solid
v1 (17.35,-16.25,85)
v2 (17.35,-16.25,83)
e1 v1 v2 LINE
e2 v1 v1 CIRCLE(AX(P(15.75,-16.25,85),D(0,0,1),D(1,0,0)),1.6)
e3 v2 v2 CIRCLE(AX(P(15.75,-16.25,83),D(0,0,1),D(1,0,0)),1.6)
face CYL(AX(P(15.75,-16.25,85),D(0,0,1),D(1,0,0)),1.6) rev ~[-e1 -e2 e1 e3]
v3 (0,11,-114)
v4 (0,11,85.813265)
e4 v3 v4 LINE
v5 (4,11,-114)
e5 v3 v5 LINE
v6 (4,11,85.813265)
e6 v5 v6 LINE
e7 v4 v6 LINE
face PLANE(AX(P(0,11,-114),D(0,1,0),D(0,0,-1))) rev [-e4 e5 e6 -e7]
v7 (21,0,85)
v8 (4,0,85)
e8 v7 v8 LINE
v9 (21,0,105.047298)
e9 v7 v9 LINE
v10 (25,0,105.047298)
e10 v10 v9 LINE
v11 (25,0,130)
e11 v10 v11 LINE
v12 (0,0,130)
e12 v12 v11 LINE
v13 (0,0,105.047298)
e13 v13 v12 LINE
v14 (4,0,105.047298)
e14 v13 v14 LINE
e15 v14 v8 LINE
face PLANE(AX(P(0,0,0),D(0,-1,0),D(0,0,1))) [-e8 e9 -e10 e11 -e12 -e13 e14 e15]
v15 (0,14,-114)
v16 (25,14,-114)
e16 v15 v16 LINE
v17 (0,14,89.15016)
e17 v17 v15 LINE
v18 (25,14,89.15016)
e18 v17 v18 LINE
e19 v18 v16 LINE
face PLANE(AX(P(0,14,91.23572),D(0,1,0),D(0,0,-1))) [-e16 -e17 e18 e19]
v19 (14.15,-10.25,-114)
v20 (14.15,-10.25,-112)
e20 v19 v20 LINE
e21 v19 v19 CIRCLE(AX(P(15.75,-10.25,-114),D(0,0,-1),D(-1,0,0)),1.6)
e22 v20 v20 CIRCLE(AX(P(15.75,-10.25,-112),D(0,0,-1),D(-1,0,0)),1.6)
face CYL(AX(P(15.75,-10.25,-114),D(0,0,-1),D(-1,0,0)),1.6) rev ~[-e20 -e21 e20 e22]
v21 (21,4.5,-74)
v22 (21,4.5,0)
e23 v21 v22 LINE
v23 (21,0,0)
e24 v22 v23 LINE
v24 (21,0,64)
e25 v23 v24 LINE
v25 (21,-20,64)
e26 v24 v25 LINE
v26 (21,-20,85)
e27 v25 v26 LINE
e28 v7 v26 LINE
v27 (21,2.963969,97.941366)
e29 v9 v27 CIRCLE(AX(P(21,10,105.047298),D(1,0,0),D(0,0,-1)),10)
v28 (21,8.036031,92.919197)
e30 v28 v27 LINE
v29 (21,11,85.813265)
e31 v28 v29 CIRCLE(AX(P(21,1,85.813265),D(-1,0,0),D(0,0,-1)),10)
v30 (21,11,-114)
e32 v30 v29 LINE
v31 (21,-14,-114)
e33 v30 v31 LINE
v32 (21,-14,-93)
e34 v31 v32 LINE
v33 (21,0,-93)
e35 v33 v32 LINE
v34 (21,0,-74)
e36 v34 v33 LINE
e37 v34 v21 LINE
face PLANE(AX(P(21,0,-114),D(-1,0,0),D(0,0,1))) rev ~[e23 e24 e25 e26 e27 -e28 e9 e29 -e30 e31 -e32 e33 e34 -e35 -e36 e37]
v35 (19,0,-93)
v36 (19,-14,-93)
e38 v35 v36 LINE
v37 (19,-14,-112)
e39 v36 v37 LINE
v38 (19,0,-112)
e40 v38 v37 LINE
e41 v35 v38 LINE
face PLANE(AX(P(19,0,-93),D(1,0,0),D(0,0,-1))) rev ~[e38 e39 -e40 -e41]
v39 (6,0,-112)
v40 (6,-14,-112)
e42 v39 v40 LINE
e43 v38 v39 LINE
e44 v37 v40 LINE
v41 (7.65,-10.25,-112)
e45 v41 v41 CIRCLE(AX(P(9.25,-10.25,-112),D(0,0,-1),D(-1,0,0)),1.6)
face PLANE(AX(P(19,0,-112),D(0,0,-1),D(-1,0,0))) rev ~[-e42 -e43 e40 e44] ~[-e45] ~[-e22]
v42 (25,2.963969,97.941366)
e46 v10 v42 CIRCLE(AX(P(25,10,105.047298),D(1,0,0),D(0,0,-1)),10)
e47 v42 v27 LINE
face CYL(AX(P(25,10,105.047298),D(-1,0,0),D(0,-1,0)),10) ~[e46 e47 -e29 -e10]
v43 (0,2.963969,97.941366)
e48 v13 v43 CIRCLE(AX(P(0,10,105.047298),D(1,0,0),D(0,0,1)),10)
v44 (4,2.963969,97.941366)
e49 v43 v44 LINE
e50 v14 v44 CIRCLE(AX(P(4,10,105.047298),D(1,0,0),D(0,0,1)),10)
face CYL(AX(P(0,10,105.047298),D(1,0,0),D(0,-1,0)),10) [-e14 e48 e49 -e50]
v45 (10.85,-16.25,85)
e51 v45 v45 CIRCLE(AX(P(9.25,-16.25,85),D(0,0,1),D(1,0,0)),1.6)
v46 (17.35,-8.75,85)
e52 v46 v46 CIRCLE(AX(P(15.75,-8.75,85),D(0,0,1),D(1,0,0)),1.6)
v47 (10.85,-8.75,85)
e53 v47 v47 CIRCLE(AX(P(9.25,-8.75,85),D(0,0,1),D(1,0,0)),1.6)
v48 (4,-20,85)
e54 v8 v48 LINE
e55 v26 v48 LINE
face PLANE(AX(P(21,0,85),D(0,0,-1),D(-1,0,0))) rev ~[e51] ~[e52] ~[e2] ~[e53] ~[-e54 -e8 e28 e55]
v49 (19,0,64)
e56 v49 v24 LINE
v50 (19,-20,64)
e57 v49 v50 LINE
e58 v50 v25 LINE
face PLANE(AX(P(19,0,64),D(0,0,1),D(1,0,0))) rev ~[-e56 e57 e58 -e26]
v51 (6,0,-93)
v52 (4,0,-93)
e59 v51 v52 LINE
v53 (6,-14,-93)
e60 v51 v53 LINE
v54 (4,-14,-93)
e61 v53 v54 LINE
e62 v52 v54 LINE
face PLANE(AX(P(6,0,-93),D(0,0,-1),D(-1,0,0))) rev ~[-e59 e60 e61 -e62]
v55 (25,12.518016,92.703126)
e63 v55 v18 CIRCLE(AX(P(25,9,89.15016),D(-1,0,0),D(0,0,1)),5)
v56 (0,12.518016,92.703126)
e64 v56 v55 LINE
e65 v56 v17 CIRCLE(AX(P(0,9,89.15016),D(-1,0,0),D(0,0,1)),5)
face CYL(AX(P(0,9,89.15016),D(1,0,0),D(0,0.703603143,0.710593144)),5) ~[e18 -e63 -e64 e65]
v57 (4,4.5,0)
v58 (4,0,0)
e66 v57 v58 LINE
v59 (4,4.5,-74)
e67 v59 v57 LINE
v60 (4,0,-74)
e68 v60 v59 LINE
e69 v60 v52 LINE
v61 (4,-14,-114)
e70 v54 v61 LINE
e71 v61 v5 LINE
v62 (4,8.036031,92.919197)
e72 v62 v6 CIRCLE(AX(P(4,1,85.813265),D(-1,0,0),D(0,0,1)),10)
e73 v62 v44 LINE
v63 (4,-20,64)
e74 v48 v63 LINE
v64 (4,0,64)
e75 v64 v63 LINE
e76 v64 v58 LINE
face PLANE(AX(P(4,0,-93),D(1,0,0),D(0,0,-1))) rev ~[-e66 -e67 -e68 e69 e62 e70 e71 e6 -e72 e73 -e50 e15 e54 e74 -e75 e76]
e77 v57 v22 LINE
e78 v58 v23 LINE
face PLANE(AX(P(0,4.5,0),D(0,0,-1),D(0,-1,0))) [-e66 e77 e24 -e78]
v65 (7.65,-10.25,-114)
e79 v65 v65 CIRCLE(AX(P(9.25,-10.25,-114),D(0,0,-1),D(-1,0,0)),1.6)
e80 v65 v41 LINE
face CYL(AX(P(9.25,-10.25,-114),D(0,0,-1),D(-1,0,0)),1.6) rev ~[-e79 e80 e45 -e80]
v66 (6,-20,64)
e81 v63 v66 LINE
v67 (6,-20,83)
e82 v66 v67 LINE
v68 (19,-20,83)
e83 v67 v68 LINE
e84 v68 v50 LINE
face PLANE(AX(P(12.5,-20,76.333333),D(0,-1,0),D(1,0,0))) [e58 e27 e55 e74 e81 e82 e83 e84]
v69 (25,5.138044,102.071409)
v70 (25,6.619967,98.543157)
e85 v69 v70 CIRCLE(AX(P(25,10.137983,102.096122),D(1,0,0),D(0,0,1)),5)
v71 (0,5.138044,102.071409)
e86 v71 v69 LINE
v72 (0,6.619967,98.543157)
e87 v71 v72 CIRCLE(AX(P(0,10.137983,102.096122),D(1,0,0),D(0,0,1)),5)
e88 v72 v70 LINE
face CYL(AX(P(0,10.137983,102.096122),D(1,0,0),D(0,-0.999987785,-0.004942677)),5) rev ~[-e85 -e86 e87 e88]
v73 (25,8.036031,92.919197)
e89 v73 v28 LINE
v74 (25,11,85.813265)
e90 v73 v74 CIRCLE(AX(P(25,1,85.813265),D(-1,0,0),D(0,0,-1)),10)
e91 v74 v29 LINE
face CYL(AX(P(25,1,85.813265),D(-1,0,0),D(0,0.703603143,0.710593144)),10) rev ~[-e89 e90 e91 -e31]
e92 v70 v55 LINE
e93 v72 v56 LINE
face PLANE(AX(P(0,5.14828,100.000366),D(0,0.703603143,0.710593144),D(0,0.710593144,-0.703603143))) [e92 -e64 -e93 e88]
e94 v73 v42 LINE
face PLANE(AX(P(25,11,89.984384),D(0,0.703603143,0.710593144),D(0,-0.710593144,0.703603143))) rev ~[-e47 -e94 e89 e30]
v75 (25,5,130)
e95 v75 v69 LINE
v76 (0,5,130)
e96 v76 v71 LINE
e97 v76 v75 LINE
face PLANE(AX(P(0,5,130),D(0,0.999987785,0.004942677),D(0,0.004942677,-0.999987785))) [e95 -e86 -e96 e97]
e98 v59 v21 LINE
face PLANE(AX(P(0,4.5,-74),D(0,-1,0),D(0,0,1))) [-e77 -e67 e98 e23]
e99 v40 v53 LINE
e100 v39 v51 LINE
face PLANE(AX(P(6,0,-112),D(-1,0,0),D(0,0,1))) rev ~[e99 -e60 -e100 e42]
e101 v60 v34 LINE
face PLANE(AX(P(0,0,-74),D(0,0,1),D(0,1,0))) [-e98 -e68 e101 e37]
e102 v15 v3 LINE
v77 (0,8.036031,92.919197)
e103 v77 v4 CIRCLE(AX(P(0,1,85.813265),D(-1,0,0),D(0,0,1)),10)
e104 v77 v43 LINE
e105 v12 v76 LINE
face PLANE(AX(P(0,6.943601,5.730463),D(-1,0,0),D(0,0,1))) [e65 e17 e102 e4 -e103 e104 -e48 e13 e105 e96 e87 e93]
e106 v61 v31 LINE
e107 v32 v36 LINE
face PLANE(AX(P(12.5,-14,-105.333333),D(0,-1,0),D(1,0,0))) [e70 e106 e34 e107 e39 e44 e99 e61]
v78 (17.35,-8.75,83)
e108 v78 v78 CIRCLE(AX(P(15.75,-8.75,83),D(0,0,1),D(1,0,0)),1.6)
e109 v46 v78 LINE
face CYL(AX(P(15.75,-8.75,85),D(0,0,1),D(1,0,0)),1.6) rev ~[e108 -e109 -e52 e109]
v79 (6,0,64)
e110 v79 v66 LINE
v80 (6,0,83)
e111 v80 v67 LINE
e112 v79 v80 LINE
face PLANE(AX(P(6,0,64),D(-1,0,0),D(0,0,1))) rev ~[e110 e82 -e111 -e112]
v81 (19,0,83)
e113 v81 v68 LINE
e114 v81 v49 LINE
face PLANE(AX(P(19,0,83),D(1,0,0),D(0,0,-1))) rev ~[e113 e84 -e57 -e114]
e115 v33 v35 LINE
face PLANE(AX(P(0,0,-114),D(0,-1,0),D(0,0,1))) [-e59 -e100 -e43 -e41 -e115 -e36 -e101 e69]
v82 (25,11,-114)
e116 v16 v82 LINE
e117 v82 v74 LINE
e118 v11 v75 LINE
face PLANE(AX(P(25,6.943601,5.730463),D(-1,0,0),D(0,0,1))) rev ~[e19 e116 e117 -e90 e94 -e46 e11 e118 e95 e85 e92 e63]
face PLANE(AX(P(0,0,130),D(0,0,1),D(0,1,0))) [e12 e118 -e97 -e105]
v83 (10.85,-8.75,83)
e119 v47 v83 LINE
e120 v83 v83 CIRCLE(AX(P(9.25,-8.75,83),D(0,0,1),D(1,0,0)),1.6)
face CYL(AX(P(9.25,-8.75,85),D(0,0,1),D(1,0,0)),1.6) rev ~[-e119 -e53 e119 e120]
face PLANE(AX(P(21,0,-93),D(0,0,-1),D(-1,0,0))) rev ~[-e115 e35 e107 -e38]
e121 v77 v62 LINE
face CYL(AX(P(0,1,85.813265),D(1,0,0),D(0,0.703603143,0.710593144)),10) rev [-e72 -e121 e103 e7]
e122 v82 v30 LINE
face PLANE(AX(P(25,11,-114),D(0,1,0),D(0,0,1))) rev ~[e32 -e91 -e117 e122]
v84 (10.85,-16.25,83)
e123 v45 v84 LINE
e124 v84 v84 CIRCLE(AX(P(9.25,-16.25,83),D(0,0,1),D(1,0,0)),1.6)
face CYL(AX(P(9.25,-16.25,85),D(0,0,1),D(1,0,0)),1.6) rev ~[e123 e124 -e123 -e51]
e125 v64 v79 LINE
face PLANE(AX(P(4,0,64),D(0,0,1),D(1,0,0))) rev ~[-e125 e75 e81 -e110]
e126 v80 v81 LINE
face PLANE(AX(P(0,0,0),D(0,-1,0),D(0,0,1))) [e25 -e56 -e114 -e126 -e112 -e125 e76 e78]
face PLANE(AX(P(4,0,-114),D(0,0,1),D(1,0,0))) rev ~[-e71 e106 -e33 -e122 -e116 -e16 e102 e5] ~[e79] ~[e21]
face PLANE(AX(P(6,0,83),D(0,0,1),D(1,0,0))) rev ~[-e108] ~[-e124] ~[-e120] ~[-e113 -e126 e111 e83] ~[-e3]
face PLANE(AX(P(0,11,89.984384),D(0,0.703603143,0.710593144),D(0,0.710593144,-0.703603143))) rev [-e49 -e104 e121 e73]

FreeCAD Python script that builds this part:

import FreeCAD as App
import Part
import Sketcher

V = App.Vector
Q = App.Units.Quantity


def edges_at(feature, points):
    """Names of the edges that pass closest to the given points."""
    edges = feature.Shape.Edges
    near = lambda p: min(range(len(edges)), key=lambda i: edges[i].distToShape(Part.Vertex(*p))[0])
    return sorted({f"Edge{near(p) + 1}" for p in points})


def add_polygon(sketch, points):
    """Adds a closed chain of lines whose ends are joined by coincident constraints."""
    first, n = sketch.GeometryCount, len(points)
    for a, b in zip(points, points[1:] + points[:1]):
        sketch.addGeometry(Part.LineSegment(App.Vector(*a, 0), App.Vector(*b, 0)), False)
    for i in range(n):
        sketch.addConstraint(Sketcher.Constraint("Coincident", first + i, 2, first + (i + 1) % n, 1))

doc = App.newDocument("Part")
params = doc.addObject("Spreadsheet::Sheet", "Params")
for row, (alias, value) in enumerate([
    ("sketch1_width", "14 mm"),
    ("sketch1_width2", "5 mm"),
    ("sketch1_height", "130 mm"),
    ("sketch1_height2", "74 mm"),
    ("sketch1_height3", "40 mm"),
    ("pad1_length", "25 mm"),
    ("sketch2_width", "11 mm"),
    ("pocket1_length", "4 mm"),
    ("fillet_radius", "10 mm"),
    ("fillet2_radius", "5 mm"),
    ("sketch3_width", "17 mm"),
    ("sketch3_width2", "2 mm"),
    ("sketch3_height", "21 mm"),
    ("sketch3_height2", "19 mm"),
    ("pad2_length", "20 mm"),
    ("sketch4_diameter", "3.2 mm"),
    ("pocket2_length", "2 mm"),
    ("sketch5_width", "17 mm"),
    ("sketch5_width2", "2 mm"),
    ("sketch5_height", "21 mm"),
    ("sketch5_height2", "19 mm"),
    ("pad3_length", "14 mm"),
    ("sketch6_diameter", "3.2 mm"),
    ("pocket3_length", "2 mm"),
], start=1):
    params.set(f"A{row}", alias)
    params.set(f"B{row}", "=" + value)
    params.setAlias(f"B{row}", alias)

body = doc.addObject("PartDesign::Body", "Body")

sketch1 = doc.addObject("Sketcher::SketchObject", "Sketch")
body.addObject(sketch1)
sketch1.AttachmentSupport = (doc.YZ_Plane, [""])
sketch1.MapMode = "FlatFace"
add_polygon(sketch1, [(0, 130), (0, 0), (4.5, 0), (4.5, -74), (0, -74), (0, -114), (14, -114), (14, 91.23572), (5.14828, 100.000366), (5, 130)])
sketch1.addConstraint(Sketcher.Constraint("Vertical", 0))
sketch1.addConstraint(Sketcher.Constraint("Horizontal", 1))
sketch1.addConstraint(Sketcher.Constraint("Vertical", 2))
sketch1.addConstraint(Sketcher.Constraint("Horizontal", 3))
sketch1.addConstraint(Sketcher.Constraint("Vertical", 4))
sketch1.addConstraint(Sketcher.Constraint("Horizontal", 5))
sketch1.addConstraint(Sketcher.Constraint("Vertical", 6))
sketch1.addConstraint(Sketcher.Constraint("Horizontal", 9))
sketch1.addConstraint(Sketcher.Constraint("Coincident", 0, 2, -1, 1))
sketch1.addConstraint(Sketcher.Constraint("PointOnObject", 3, 2, -2))
sketch1.addConstraint(Sketcher.Constraint("DistanceX", 5, 1, 5, 2, Q("14 mm")))
sketch1.addConstraint(Sketcher.Constraint("DistanceX", 9, 2, 9, 1, Q("5 mm")))
sketch1.addConstraint(Sketcher.Constraint("DistanceY", 0, 2, 0, 1, Q("130 mm")))
sketch1.addConstraint(Sketcher.Constraint("DistanceY", 2, 2, 2, 1, Q("74 mm")))
sketch1.addConstraint(Sketcher.Constraint("DistanceY", 4, 2, 4, 1, Q("40 mm")))
sketch1.addConstraint(Sketcher.Constraint("Distance", 8, Q("30 mm")))
sketch1.addConstraint(Sketcher.Constraint("DistanceX", 1, 1, 1, 2, Q("4.5 mm")))
sketch1.addConstraint(Sketcher.Constraint("DistanceY", 6, 1, 6, 2, Q("205.23572 mm")))
sketch1.addConstraint(Sketcher.Constraint("DistanceX", -1, 1, 7, 2, Q("5.14828 mm")))
sketch1.setExpression("Constraints[20]", "Params.sketch1_width")
sketch1.setExpression("Constraints[21]", "Params.sketch1_width2")
sketch1.setExpression("Constraints[22]", "Params.sketch1_height")
sketch1.setExpression("Constraints[23]", "Params.sketch1_height2")
sketch1.setExpression("Constraints[24]", "Params.sketch1_height3")
pad1 = doc.addObject("PartDesign::Pad", "Pad")
body.addObject(pad1)
pad1.Profile = sketch1
pad1.setExpression("Length", "Params.pad1_length")

sketch2 = doc.addObject("Sketcher::SketchObject", "Sketch001")
body.addObject(sketch2)
sketch2.AttachmentSupport = (doc.YZ_Plane, [""])
sketch2.MapMode = "FlatFace"
sketch2.AttachmentOffset = App.Placement(V(0, 0, 25), App.Rotation())
add_polygon(sketch2, [(0, 100.876179), (0, -114), (11, -114), (11, 89.984384)])
sketch2.addConstraint(Sketcher.Constraint("Vertical", 0))
sketch2.addConstraint(Sketcher.Constraint("Horizontal", 1))
sketch2.addConstraint(Sketcher.Constraint("Vertical", 2))
sketch2.addConstraint(Sketcher.Constraint("PointOnObject", 0, 2, -2))
sketch2.addConstraint(Sketcher.Constraint("DistanceX", 1, 1, 1, 2, Q("11 mm")))
sketch2.addConstraint(Sketcher.Constraint("DistanceY", 0, 2, -1, 1, Q("114 mm")))
sketch2.addConstraint(Sketcher.Constraint("DistanceY", 0, 2, 0, 1, Q("214.876179 mm")))
sketch2.addConstraint(Sketcher.Constraint("DistanceY", 2, 1, 2, 2, Q("203.984384 mm")))
sketch2.setExpression("Constraints[8]", "Params.sketch2_width")
pocket1 = doc.addObject("PartDesign::Pocket", "Pocket")
body.addObject(pocket1)
pocket1.Profile = sketch2
pocket1.setExpression("Length", "Params.pocket1_length")
doc.recompute()

datumplane = doc.addObject("PartDesign::Plane", "DatumPlane")
body.addObject(datumplane)
datumplane.AttachmentSupport = (doc.YZ_Plane, [""])
datumplane.MapMode = "FlatFace"
datumplane.AttachmentOffset = App.Placement(V(0, 0, 12.5), App.Rotation())
mirrored = doc.addObject("PartDesign::Mirrored", "Mirrored")
body.addObject(mirrored)
mirrored.Originals = [pocket1]
mirrored.MirrorPlane = (datumplane, [""])
body.Tip = mirrored
doc.recompute()

fillet = doc.addObject("PartDesign::Fillet", "Fillet")
body.addObject(fillet)
fillet.Base = (mirrored, edges_at(mirrored, [
    (23, 0, 100.876),
    (23, 11, 89.984),
    (2, 0, 100.876),
    (2, 11, 89.984),
]))
fillet.setExpression("Radius", "Params.fillet_radius")
doc.recompute()

fillet2 = doc.addObject("PartDesign::Fillet", "Fillet001")
body.addObject(fillet2)
fillet2.Base = (fillet, edges_at(fillet, [(12.5, 5.148, 100), (12.5, 14, 91.236)]))
fillet2.setExpression("Radius", "Params.fillet2_radius")

sketch3 = doc.addObject("Sketcher::SketchObject", "Sketch002")
body.addObject(sketch3)
sketch3.AttachmentSupport = (doc.XZ_Plane, [""])
sketch3.MapMode = "FlatFace"
add_polygon(sketch3, [(21, 85), (4, 85), (4, 64), (6, 64), (6, 83), (19, 83), (19, 64), (21, 64)])
sketch3.addConstraint(Sketcher.Constraint("Horizontal", 0))
sketch3.addConstraint(Sketcher.Constraint("Vertical", 1))
sketch3.addConstraint(Sketcher.Constraint("Horizontal", 2))
sketch3.addConstraint(Sketcher.Constraint("Vertical", 3))
sketch3.addConstraint(Sketcher.Constraint("Horizontal", 4))
sketch3.addConstraint(Sketcher.Constraint("Vertical", 5))
sketch3.addConstraint(Sketcher.Constraint("Horizontal", 6))
sketch3.addConstraint(Sketcher.Constraint("Vertical", 7))
sketch3.addConstraint(Sketcher.Constraint("Horizontal", 2, 2, 5, 2))
sketch3.addConstraint(Sketcher.Constraint("Equal", 2, 6))
sketch3.addConstraint(Sketcher.Constraint("DistanceX", 0, 2, 0, 1, Q("17 mm")))
sketch3.addConstraint(Sketcher.Constraint("DistanceX", 2, 1, 2, 2, Q("2 mm")))
sketch3.addConstraint(Sketcher.Constraint("DistanceY", 1, 2, 1, 1, Q("21 mm")))
sketch3.addConstraint(Sketcher.Constraint("DistanceY", 3, 1, 3, 2, Q("19 mm")))
sketch3.addConstraint(Sketcher.Constraint("DistanceX", -1, 1, 0, 2, Q("4 mm")))
sketch3.addConstraint(Sketcher.Constraint("DistanceY", -1, 1, 0, 2, Q("85 mm")))
sketch3.setExpression("Constraints[18]", "Params.sketch3_width")
sketch3.setExpression("Constraints[19]", "Params.sketch3_width2")
sketch3.setExpression("Constraints[20]", "Params.sketch3_height")
sketch3.setExpression("Constraints[21]", "Params.sketch3_height2")
pad2 = doc.addObject("PartDesign::Pad", "Pad001")
body.addObject(pad2)
pad2.Profile = sketch3
pad2.setExpression("Length", "Params.pad2_length")

sketch4 = doc.addObject("Sketcher::SketchObject", "Sketch003")
body.addObject(sketch4)
sketch4.AttachmentSupport = (doc.XY_Plane, [""])
sketch4.MapMode = "FlatFace"
sketch4.AttachmentOffset = App.Placement(V(0, 0, 85), App.Rotation())
sketch4.addGeometry(Part.Circle(V(15.75, -16.25, 0), V(0, 0, 1), 1.6), False)
sketch4.addGeometry(Part.Circle(V(9.25, -16.25, 0), V(0, 0, 1), 1.6), False)
sketch4.addGeometry(Part.Circle(V(9.25, -8.75, 0), V(0, 0, 1), 1.6), False)
sketch4.addGeometry(Part.Circle(V(15.75, -8.75, 0), V(0, 0, 1), 1.6), False)
sketch4.addConstraint(Sketcher.Constraint("Equal", 0, 1))
sketch4.addConstraint(Sketcher.Constraint("Equal", 1, 2))
sketch4.addConstraint(Sketcher.Constraint("Equal", 2, 3))
sketch4.addConstraint(Sketcher.Constraint("Horizontal", 0, 3, 1, 3))
sketch4.addConstraint(Sketcher.Constraint("Horizontal", 2, 3, 3, 3))
sketch4.addConstraint(Sketcher.Constraint("Vertical", 1, 3, 2, 3))
sketch4.addConstraint(Sketcher.Constraint("Vertical", 0, 3, 3, 3))
sketch4.addConstraint(Sketcher.Constraint("Diameter", 0, Q("3.2 mm")))
sketch4.addConstraint(Sketcher.Constraint("DistanceX", 1, 3, 0, 3, Q("6.5 mm")))
sketch4.addConstraint(Sketcher.Constraint("DistanceY", 1, 3, 2, 3, Q("7.5 mm")))
sketch4.addConstraint(Sketcher.Constraint("DistanceX", -1, 1, 0, 3, Q("15.75 mm")))
sketch4.addConstraint(Sketcher.Constraint("DistanceY", 0, 3, -1, 1, Q("16.25 mm")))
sketch4.setExpression("Constraints[7]", "Params.sketch4_diameter")
pocket2 = doc.addObject("PartDesign::Pocket", "Pocket001")
body.addObject(pocket2)
pocket2.Profile = sketch4
pocket2.setExpression("Length", "Params.pocket2_length")

sketch5 = doc.addObject("Sketcher::SketchObject", "Sketch004")
body.addObject(sketch5)
sketch5.AttachmentSupport = (doc.XZ_Plane, [""])
sketch5.MapMode = "FlatFace"
add_polygon(sketch5, [(4, -114), (21, -114), (21, -93), (19, -93), (19, -112), (6, -112), (6, -93), (4, -93)])
sketch5.addConstraint(Sketcher.Constraint("Horizontal", 0))
sketch5.addConstraint(Sketcher.Constraint("Vertical", 1))
sketch5.addConstraint(Sketcher.Constraint("Horizontal", 2))
sketch5.addConstraint(Sketcher.Constraint("Vertical", 3))
sketch5.addConstraint(Sketcher.Constraint("Horizontal", 4))
sketch5.addConstraint(Sketcher.Constraint("Vertical", 5))
sketch5.addConstraint(Sketcher.Constraint("Horizontal", 6))
sketch5.addConstraint(Sketcher.Constraint("Vertical", 7))
sketch5.addConstraint(Sketcher.Constraint("Horizontal", 2, 2, 5, 2))
sketch5.addConstraint(Sketcher.Constraint("Equal", 2, 6))
sketch5.addConstraint(Sketcher.Constraint("DistanceX", 0, 1, 0, 2, Q("17 mm")))
sketch5.addConstraint(Sketcher.Constraint("DistanceX", 2, 2, 2, 1, Q("2 mm")))
sketch5.addConstraint(Sketcher.Constraint("DistanceY", 1, 1, 1, 2, Q("21 mm")))
sketch5.addConstraint(Sketcher.Constraint("DistanceY", 3, 2, 3, 1, Q("19 mm")))
sketch5.addConstraint(Sketcher.Constraint("DistanceX", -1, 1, 0, 2, Q("21 mm")))
sketch5.addConstraint(Sketcher.Constraint("DistanceY", 0, 2, -1, 1, Q("114 mm")))
sketch5.setExpression("Constraints[18]", "Params.sketch5_width")
sketch5.setExpression("Constraints[19]", "Params.sketch5_width2")
sketch5.setExpression("Constraints[20]", "Params.sketch5_height")
sketch5.setExpression("Constraints[21]", "Params.sketch5_height2")
pad3 = doc.addObject("PartDesign::Pad", "Pad002")
body.addObject(pad3)
pad3.Profile = sketch5
pad3.setExpression("Length", "Params.pad3_length")

sketch6 = doc.addObject("Sketcher::SketchObject", "Sketch005")
body.addObject(sketch6)
sketch6.AttachmentSupport = (doc.XY_Plane, [""])
sketch6.MapMode = "FlatFace"
sketch6.AttachmentOffset = App.Placement(V(0, 0, -114), App.Rotation())
sketch6.addGeometry(Part.Circle(V(9.25, -10.25, 0), V(0, 0, 1), 1.6), False)
sketch6.addGeometry(Part.Circle(V(15.75, -10.25, 0), V(0, 0, 1), 1.6), False)
sketch6.addConstraint(Sketcher.Constraint("Equal", 0, 1))
sketch6.addConstraint(Sketcher.Constraint("Horizontal", 0, 3, 1, 3))
sketch6.addConstraint(Sketcher.Constraint("Diameter", 0, Q("3.2 mm")))
sketch6.addConstraint(Sketcher.Constraint("DistanceX", 0, 3, 1, 3, Q("6.5 mm")))
sketch6.addConstraint(Sketcher.Constraint("DistanceX", -1, 1, 0, 3, Q("9.25 mm")))
sketch6.addConstraint(Sketcher.Constraint("DistanceY", 0, 3, -1, 1, Q("10.25 mm")))
sketch6.setExpression("Constraints[2]", "Params.sketch6_diameter")
pocket3 = doc.addObject("PartDesign::Pocket", "Pocket002")
body.addObject(pocket3)
pocket3.Profile = sketch6
pocket3.setExpression("Length", "Params.pocket3_length")
pocket3.Reversed = True

doc.recompute()
